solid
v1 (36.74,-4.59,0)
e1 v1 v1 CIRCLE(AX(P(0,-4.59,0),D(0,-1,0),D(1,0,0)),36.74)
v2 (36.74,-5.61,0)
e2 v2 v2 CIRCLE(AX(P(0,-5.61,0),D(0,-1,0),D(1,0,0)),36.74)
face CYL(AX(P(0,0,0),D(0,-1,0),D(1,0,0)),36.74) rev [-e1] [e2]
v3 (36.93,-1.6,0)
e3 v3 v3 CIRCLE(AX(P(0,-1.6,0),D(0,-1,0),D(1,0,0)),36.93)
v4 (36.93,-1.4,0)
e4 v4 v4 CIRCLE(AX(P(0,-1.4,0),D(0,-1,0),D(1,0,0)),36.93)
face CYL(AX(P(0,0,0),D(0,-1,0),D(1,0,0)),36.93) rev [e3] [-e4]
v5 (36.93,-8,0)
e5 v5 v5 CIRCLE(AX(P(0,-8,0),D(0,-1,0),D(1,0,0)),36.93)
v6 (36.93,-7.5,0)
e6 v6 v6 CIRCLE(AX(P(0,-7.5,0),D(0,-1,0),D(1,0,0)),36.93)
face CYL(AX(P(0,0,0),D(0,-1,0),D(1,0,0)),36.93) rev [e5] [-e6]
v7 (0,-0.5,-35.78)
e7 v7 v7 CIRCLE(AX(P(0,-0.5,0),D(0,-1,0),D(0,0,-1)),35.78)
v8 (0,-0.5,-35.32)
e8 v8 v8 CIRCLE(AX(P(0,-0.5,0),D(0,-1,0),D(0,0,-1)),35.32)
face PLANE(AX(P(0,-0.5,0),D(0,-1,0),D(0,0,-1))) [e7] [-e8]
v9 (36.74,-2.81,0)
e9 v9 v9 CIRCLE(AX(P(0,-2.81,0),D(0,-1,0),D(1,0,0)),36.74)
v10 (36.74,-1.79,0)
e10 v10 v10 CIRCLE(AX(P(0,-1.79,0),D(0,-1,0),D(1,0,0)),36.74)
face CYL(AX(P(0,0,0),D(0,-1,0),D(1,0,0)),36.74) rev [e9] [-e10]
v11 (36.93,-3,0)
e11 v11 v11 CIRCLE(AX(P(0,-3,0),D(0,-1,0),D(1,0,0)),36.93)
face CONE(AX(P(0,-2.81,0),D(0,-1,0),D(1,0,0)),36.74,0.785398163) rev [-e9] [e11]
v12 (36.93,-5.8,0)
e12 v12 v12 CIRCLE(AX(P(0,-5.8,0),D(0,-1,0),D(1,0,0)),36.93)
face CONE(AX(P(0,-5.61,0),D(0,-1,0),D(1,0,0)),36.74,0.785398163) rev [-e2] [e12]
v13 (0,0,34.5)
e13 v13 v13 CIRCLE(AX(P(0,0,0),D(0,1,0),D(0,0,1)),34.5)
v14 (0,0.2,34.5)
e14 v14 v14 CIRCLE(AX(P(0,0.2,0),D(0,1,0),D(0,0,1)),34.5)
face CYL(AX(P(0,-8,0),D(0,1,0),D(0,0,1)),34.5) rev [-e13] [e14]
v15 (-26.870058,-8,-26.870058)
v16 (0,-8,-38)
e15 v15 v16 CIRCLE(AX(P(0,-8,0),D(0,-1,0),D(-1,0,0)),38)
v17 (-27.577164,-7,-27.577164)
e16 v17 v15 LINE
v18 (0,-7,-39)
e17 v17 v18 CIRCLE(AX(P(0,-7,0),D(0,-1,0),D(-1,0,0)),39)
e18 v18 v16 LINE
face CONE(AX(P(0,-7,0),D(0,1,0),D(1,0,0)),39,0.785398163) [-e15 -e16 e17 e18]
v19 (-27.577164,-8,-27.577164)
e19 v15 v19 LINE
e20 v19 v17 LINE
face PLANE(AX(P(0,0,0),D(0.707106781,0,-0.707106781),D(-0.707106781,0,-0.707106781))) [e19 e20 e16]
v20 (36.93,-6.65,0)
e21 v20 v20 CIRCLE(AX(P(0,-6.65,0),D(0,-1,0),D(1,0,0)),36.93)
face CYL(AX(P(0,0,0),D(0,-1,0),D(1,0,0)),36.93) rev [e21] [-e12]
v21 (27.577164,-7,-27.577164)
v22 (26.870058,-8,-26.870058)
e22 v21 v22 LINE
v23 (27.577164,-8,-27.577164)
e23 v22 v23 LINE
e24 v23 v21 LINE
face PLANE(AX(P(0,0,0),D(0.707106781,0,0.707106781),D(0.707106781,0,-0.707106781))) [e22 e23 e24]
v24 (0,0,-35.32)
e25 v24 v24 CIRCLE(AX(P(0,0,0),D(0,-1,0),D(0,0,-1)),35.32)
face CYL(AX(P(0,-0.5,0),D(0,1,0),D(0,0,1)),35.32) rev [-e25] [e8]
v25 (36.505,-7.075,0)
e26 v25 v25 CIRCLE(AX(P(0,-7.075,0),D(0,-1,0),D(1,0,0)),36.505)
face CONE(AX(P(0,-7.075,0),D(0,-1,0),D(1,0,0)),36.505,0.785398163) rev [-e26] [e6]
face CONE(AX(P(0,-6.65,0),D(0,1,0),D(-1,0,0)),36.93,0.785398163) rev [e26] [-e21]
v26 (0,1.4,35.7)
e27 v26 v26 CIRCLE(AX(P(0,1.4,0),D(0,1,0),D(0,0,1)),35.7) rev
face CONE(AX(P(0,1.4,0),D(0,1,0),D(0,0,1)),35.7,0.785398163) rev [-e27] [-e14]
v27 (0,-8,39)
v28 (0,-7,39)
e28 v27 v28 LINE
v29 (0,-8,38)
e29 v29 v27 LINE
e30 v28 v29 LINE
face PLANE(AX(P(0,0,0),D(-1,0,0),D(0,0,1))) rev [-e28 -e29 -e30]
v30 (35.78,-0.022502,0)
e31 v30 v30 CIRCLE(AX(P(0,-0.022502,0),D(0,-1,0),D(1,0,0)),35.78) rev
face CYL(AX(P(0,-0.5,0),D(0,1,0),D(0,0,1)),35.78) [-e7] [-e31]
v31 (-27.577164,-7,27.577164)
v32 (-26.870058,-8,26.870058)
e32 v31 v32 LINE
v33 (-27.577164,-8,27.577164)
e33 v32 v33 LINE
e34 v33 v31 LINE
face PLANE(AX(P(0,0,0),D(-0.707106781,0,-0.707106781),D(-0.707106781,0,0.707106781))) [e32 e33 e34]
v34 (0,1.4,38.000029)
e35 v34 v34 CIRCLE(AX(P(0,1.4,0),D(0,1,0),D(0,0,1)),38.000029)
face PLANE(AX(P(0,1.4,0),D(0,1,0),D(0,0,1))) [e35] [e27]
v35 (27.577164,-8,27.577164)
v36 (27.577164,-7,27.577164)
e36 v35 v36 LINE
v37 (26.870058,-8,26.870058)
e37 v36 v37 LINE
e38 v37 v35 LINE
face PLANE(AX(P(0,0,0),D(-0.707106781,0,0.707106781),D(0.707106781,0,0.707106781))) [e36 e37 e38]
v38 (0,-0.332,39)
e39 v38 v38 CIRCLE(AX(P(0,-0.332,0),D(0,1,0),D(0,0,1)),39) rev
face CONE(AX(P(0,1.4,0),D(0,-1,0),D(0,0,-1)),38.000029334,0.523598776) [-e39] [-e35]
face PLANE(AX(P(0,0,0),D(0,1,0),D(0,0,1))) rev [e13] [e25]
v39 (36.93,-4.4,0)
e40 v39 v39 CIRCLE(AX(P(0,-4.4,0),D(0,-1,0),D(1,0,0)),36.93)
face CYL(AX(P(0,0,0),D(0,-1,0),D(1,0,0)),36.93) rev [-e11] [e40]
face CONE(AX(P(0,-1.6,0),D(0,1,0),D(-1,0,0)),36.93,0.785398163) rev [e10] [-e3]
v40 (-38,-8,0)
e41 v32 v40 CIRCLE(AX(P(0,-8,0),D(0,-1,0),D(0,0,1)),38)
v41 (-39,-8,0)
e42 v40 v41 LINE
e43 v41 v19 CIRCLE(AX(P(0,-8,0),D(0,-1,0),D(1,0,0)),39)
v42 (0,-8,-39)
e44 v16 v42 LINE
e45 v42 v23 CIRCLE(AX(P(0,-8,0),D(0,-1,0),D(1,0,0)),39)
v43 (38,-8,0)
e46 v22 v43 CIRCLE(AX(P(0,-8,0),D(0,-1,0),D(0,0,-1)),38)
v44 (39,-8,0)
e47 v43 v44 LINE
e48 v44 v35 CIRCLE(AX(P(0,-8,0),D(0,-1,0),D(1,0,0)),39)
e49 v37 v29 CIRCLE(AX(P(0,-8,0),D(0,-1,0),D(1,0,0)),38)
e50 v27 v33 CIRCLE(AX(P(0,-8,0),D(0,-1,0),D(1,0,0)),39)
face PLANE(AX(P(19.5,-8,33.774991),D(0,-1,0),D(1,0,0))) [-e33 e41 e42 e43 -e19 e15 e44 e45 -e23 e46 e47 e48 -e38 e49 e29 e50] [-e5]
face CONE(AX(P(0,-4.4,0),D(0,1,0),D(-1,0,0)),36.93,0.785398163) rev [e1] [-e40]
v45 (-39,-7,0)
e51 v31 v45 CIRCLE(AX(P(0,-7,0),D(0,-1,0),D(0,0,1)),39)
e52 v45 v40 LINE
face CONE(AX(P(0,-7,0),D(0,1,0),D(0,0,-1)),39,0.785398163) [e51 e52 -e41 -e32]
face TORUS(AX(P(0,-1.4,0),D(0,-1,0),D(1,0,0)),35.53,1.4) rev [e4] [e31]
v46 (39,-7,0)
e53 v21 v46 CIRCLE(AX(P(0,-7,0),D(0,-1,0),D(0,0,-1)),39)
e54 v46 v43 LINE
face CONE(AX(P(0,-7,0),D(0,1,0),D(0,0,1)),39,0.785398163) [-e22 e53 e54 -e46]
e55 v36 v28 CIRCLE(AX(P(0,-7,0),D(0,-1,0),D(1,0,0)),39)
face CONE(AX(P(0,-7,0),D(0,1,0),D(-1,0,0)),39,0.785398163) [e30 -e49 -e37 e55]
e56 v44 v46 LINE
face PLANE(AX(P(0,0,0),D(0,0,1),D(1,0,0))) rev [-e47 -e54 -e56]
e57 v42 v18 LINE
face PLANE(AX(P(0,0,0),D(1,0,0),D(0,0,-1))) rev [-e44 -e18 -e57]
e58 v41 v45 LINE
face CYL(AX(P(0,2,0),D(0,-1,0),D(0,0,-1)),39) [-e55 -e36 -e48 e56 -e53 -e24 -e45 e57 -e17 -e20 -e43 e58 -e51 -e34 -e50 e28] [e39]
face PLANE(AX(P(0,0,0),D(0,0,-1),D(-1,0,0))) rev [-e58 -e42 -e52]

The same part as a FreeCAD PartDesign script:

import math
import FreeCAD as App
import Part
import Sketcher

V = App.Vector


def edges_at(feature, points):
    """Names of the edges that pass closest to the given points."""
    edges = feature.Shape.Edges
    near = lambda p: min(range(len(edges)), key=lambda i: edges[i].distToShape(Part.Vertex(*p))[0])
    return sorted({f"Edge{near(p) + 1}" for p in points})


def add_polygon(sketch, points):
    """Adds a closed chain of lines whose ends are joined by coincident constraints."""
    first, n = sketch.GeometryCount, len(points)
    for a, b in zip(points, points[1:] + points[:1]):
        sketch.addGeometry(Part.LineSegment(App.Vector(*a, 0), App.Vector(*b, 0)), False)
    for i in range(n):
        sketch.addConstraint(Sketcher.Constraint("Coincident", first + i, 2, first + (i + 1) % n, 1))

doc = App.newDocument("Part")
body = doc.addObject("PartDesign::Body", "Body")

sketch1 = doc.addObject("Sketcher::SketchObject", "Sketch")
body.addObject(sketch1)
sketch1.AttachmentSupport = (doc.XZ_Plane, [""])
sketch1.MapMode = "FlatFace"
sketch1.addGeometry(Part.Circle(V(0, 0, 0), V(0, 0, 1), 39), False)
sketch1.addConstraint([
    Sketcher.Constraint("Coincident", 0, 3, -1, 1),
    Sketcher.Constraint("Diameter", 0, 78.0),
])
pad1 = doc.addObject("PartDesign::Pad", "Pad")
body.addObject(pad1)
pad1.Profile = sketch1
pad1.Length = 2
pad1.Reversed = True

sketch2 = doc.addObject("Sketcher::SketchObject", "Sketch001")
body.addObject(sketch2)
sketch2.Placement = App.Placement(V(0, 0, 0), App.Rotation(V(0.5, 0, 0.866025404), V(0, 1, 0), V(-0.866025404, 0, 0.5), "ZXY"))
sketch2.addGeometry([
    Part.LineSegment(V(36.93, -7.5, 0), V(36.93, -8, 0)),
    Part.LineSegment(V(36.93, -8, 0), V(39, -8, 0)),
    Part.LineSegment(V(39, -8, 0), V(39, 0, 0)),
    Part.LineSegment(V(39, 0, 0), V(35.53, 0, 0)),
    Part.ArcOfCircle(Part.Circle(V(35.53, -1.4, 0), V(0, 0, 1), 1.4), math.radians(0), math.radians(90)),
    Part.LineSegment(V(36.93, -1.4, 0), V(36.93, -1.6, 0)),
    Part.LineSegment(V(36.93, -1.6, 0), V(36.74, -1.79, 0)),
    Part.LineSegment(V(36.74, -1.79, 0), V(36.74, -2.81, 0)),
    Part.LineSegment(V(36.74, -2.81, 0), V(36.93, -3, 0)),
    Part.LineSegment(V(36.93, -3, 0), V(36.93, -4.4, 0)),
    Part.LineSegment(V(36.93, -4.4, 0), V(36.74, -4.59, 0)),
    Part.LineSegment(V(36.74, -4.59, 0), V(36.74, -5.61, 0)),
    Part.LineSegment(V(36.74, -5.61, 0), V(36.93, -5.8, 0)),
    Part.LineSegment(V(36.93, -5.8, 0), V(36.93, -6.65, 0)),
    Part.LineSegment(V(36.93, -6.65, 0), V(36.51, -7.08, 0)),
    Part.LineSegment(V(36.51, -7.08, 0), V(36.93, -7.5, 0)),
], False)
sketch2.addConstraint([
    Sketcher.Constraint("Coincident", 0, 2, 1, 1),
    Sketcher.Constraint("Coincident", 1, 2, 2, 1),
    Sketcher.Constraint("Coincident", 2, 2, 3, 1),
    Sketcher.Constraint("Tangent", 3, 2, 4, 2),
    Sketcher.Constraint("Tangent", 4, 1, 5, 1),
    Sketcher.Constraint("Coincident", 5, 2, 6, 1),
    Sketcher.Constraint("Coincident", 6, 2, 7, 1),
    Sketcher.Constraint("Coincident", 7, 2, 8, 1),
    Sketcher.Constraint("Coincident", 8, 2, 9, 1),
    Sketcher.Constraint("Coincident", 9, 2, 10, 1),
    Sketcher.Constraint("Coincident", 10, 2, 11, 1),
    Sketcher.Constraint("Coincident", 11, 2, 12, 1),
    Sketcher.Constraint("Coincident", 12, 2, 13, 1),
    Sketcher.Constraint("Coincident", 13, 2, 14, 1),
    Sketcher.Constraint("Coincident", 14, 2, 15, 1),
    Sketcher.Constraint("Coincident", 15, 2, 0, 1),
    Sketcher.Constraint("Vertical", 0),
    Sketcher.Constraint("Horizontal", 1),
    Sketcher.Constraint("Vertical", 2),
    Sketcher.Constraint("Horizontal", 3),
    Sketcher.Constraint("Vertical", 5),
    Sketcher.Constraint("Vertical", 7),
    Sketcher.Constraint("Vertical", 9),
    Sketcher.Constraint("Vertical", 11),
    Sketcher.Constraint("Vertical", 13),
    Sketcher.Constraint("PointOnObject", 2, 2, -1),
    Sketcher.Constraint("Perpendicular", 6, 8),
    Sketcher.Constraint("Perpendicular", 8, 10),
    Sketcher.Constraint("Perpendicular", 10, 12),
    Sketcher.Constraint("Perpendicular", 12, 14),
    Sketcher.Constraint("Perpendicular", 14, 15),
    Sketcher.Constraint("Vertical", 0, 2, 4, 1),
    Sketcher.Constraint("Vertical", 5, 2, 8, 2),
    Sketcher.Constraint("Vertical", 7, 2, 10, 2),
    Sketcher.Constraint("Vertical", 9, 2, 12, 2),
    Sketcher.Constraint("Equal", 7, 11),
    Sketcher.Constraint("Equal", 6, 8),
    Sketcher.Constraint("Radius", 4, 1.4),
    Sketcher.Constraint("DistanceY", 2, 1, 2, 2, 8.0),
    Sketcher.Constraint("DistanceY", 0, 2, 0, 1, 0.5),
    Sketcher.Constraint("DistanceY", 5, 2, 5, 1, 0.2),
    Sketcher.Constraint("DistanceY", 9, 2, 9, 1, 1.4),
    Sketcher.Constraint("DistanceX", -1, 1, 1, 2, 39.0),
    Sketcher.Constraint("DistanceY", 8, 2, -1, 1, 3.0),
    Sketcher.Constraint("DistanceX", 1, 1, 1, 2, 2.07),
    Sketcher.Constraint("DistanceY", 7, 2, 7, 1, 1.02),
    Sketcher.Constraint("DistanceY", 13, 2, 13, 1, 0.85),
])
revolution = doc.addObject("PartDesign::Revolution", "Revolution")
body.addObject(revolution)
revolution.Profile = sketch2
revolution.ReferenceAxis = (sketch2, ["V_Axis"])
revolution.Angle = 360

sketch3 = doc.addObject("Sketcher::SketchObject", "Sketch002")
body.addObject(sketch3)
sketch3.AttachmentSupport = (doc.XZ_Plane, [""])
sketch3.MapMode = "FlatFace"
sketch3.AttachmentOffset = App.Placement(V(0, 0, -2), App.Rotation())
sketch3.addGeometry(Part.Circle(V(0, 0, 0), V(0, 0, 1), 34), False)
sketch3.addConstraint([
    Sketcher.Constraint("Coincident", 0, 3, -1, 1),
    Sketcher.Constraint("Diameter", 0, 69.0),
])
pocket1 = doc.addObject("PartDesign::Pocket", "Pocket")
body.addObject(pocket1)
pocket1.Profile = sketch3
pocket1.Type = "ThroughAll"
pocket1.Reversed = True

sketch4 = doc.addObject("Sketcher::SketchObject", "Sketch003")
body.addObject(sketch4)
sketch4.AttachmentSupport = (doc.XZ_Plane, [""])
sketch4.MapMode = "FlatFace"
sketch4.AttachmentOffset = App.Placement(V(0, 0, -1.4), App.Rotation())
sketch4.addGeometry(Part.Circle(V(0, 0, 0), V(0, 0, 1), 39), False)
sketch4.addConstraint([
    Sketcher.Constraint("Coincident", 0, 3, -1, 1),
    Sketcher.Constraint("Diameter", 0, 78.0),
])
pocket2 = doc.addObject("PartDesign::Pocket", "Pocket001")
body.addObject(pocket2)
pocket2.Profile = sketch4
pocket2.Length = 0.6
doc.recompute()

chamfer = doc.addObject("PartDesign::Chamfer", "Chamfer")
body.addObject(chamfer)
chamfer.Base = (pocket2, edges_at(pocket2, [(0, 1.4, -39)]))
chamfer.ChamferType = "Two distances"
chamfer.Size = 1.732
chamfer.Size2 = 0.999971
doc.recompute()

chamfer2 = doc.addObject("PartDesign::Chamfer", "Chamfer001")
body.addObject(chamfer2)
chamfer2.Base = (chamfer, edges_at(chamfer, [(0, 1.4, -34.5)]))
chamfer2.Size = 1.2

sketch5 = doc.addObject("Sketcher::SketchObject", "Sketch004")
body.addObject(sketch5)
sketch5.AttachmentSupport = (doc.XY_Plane, [""])
sketch5.MapMode = "FlatFace"
add_polygon(sketch5, [(39, -8), (39, -7), (38, -8)])
sketch5.addConstraint([
    Sketcher.Constraint("Vertical", 0),
    Sketcher.Constraint("Horizontal", 2),
    Sketcher.Constraint("Equal", 2, 0),
    Sketcher.Constraint("DistanceX", 2, 1, 2, 2, 1.0),
    Sketcher.Constraint("DistanceX", -1, 1, 0, 2, 39.0),
    Sketcher.Constraint("DistanceY", 0, 2, -1, 1, 7.0),
])
groove = doc.addObject("PartDesign::Groove", "Groove")
body.addObject(groove)
groove.Profile = sketch5
groove.ReferenceAxis = (sketch5, ["V_Axis"])
groove.Angle = 45
doc.recompute()

polarpattern = doc.addObject("PartDesign::PolarPattern", "PolarPattern")
body.addObject(polarpattern)
polarpattern.Originals = [groove]
polarpattern.Axis = (doc.Y_Axis, [""])
polarpattern.Angle = 360
polarpattern.Occurrences = 4
body.Tip = polarpattern

sketch6 = doc.addObject("Sketcher::SketchObject", "Sketch005")
body.addObject(sketch6)
sketch6.AttachmentSupport = (doc.XZ_Plane, [""])
sketch6.MapMode = "FlatFace"
sketch6.addGeometry([
    Part.Circle(V(0, 0, 0), V(0, 0, 1), 36),
    Part.Circle(V(0, 0, 0), V(0, 0, 1), 35),
], False)
sketch6.addConstraint([
    Sketcher.Constraint("Coincident", 0, 3, -1, 1),
    Sketcher.Constraint("Coincident", 1, 3, -1, 1),
    Sketcher.Constraint("Diameter", 0, 71.56),
    Sketcher.Constraint("Diameter", 1, 70.64),
])
pad2 = doc.addObject("PartDesign::Pad", "Pad001")
body.addObject(pad2)
pad2.Profile = sketch6
pad2.Length = 0.5

doc.recompute()
